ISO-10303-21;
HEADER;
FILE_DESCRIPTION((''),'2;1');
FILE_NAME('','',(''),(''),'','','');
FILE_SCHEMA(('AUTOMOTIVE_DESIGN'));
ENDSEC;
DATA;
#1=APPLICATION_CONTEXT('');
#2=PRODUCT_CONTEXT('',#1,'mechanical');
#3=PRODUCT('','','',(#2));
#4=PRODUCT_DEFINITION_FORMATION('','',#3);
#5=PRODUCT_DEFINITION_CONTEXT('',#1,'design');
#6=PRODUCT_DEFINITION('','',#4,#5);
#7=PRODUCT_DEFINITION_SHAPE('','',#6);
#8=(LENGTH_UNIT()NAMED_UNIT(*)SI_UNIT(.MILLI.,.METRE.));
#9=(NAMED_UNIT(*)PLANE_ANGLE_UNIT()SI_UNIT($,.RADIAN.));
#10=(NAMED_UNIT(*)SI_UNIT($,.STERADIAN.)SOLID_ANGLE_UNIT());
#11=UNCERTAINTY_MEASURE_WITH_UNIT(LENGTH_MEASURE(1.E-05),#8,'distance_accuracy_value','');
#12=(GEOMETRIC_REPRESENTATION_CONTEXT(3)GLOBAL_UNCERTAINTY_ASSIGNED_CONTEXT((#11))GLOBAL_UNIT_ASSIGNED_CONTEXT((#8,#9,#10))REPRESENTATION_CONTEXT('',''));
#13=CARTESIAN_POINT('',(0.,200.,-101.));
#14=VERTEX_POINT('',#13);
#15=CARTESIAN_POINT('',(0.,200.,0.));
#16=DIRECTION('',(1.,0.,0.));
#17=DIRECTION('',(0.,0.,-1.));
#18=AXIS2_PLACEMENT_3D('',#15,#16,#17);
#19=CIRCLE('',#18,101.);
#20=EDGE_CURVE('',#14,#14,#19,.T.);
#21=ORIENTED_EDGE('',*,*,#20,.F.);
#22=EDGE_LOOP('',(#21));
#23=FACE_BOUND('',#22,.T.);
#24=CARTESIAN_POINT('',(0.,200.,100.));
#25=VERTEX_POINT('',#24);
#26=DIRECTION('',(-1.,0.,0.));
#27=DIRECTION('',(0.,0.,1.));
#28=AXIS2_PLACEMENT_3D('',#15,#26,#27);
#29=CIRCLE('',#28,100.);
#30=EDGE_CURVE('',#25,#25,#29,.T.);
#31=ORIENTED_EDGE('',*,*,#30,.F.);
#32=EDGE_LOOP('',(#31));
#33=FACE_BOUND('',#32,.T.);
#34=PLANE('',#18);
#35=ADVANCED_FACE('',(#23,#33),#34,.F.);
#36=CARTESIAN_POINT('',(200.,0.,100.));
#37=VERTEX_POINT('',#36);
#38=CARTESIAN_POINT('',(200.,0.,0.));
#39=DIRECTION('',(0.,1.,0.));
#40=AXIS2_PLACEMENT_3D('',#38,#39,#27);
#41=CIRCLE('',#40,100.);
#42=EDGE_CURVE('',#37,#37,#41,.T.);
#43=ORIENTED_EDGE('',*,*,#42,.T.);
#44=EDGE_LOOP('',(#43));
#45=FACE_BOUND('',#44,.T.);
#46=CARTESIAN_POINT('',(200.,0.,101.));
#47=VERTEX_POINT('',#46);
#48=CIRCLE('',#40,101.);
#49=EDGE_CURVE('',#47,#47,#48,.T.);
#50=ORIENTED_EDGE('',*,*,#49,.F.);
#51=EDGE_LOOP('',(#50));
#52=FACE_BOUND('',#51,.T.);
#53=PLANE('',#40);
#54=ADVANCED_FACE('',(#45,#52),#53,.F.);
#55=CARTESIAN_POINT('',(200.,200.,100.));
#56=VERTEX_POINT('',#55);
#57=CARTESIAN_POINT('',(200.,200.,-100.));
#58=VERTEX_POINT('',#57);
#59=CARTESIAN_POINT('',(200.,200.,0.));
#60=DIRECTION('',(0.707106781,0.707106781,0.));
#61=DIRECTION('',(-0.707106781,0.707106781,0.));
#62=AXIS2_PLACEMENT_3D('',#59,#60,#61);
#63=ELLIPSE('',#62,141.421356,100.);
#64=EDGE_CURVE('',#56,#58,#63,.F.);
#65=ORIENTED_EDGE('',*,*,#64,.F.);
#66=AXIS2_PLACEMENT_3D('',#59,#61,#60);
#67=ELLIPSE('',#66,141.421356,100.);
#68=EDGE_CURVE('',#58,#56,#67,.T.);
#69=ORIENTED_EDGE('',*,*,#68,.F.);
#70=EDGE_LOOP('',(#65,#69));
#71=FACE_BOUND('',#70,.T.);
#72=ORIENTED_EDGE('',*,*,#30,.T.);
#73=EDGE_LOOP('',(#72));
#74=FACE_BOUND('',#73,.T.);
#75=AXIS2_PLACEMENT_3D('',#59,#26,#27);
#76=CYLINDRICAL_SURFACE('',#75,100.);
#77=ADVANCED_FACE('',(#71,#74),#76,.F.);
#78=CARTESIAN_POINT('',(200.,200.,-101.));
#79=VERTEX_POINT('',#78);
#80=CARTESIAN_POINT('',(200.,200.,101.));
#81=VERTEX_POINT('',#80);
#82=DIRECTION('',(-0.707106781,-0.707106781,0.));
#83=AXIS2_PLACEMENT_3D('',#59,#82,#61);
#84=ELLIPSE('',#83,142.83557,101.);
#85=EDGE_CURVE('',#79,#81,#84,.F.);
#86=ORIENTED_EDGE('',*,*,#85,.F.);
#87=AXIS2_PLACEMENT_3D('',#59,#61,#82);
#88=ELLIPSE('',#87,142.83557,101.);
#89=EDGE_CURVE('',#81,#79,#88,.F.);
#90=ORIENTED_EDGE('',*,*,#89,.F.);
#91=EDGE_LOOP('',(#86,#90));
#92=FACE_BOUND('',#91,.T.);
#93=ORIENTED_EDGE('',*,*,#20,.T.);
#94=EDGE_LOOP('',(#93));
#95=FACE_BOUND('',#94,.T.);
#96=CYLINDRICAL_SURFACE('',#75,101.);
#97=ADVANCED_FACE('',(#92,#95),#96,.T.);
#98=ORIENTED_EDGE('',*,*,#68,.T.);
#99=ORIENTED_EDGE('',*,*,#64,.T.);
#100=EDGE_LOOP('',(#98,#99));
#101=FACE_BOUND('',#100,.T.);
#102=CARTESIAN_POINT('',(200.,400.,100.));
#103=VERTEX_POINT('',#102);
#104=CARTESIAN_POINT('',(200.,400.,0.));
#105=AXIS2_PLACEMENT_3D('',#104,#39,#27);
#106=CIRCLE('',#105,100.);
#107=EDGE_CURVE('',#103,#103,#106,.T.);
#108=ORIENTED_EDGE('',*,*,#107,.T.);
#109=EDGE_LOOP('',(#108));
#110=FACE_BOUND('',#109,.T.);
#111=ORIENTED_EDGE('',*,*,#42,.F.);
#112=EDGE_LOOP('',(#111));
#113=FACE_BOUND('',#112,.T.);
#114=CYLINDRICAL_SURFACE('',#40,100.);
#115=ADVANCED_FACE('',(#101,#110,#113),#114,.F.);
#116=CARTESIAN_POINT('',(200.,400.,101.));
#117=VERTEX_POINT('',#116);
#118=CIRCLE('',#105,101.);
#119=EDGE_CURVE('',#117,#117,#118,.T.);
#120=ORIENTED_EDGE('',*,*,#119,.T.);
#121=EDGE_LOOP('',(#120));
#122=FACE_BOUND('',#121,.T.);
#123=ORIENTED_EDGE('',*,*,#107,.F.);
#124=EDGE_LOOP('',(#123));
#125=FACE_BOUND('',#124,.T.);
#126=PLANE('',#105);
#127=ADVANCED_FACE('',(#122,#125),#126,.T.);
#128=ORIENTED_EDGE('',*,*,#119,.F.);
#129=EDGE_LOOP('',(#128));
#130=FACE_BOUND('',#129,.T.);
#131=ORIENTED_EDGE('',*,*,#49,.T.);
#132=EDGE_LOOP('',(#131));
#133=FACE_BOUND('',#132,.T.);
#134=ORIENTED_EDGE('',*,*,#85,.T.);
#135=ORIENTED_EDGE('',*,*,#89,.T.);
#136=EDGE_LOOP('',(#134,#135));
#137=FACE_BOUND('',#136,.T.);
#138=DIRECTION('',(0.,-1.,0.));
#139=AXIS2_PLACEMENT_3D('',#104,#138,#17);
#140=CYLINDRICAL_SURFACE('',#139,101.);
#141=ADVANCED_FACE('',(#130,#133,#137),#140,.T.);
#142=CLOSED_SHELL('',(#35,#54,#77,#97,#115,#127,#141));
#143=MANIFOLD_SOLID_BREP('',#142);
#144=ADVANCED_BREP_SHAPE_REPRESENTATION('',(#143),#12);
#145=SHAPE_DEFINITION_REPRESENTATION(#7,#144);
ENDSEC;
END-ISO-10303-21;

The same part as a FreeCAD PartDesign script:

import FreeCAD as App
import Part
import Sketcher
from FreeCAD import Vector
Q = App.Units.Quantity

doc = App.newDocument("Part")
body = doc.addObject("PartDesign::Body", "Body")

sketch1 = body.newObject("Sketcher::SketchObject", "Sketch")
sketch1.AttachmentSupport = (doc.getObject("YZ_Plane"), [""])
sketch1.MapMode = "FlatFace"
sketch1.addGeometry(Part.Circle(Vector(200, 0, 0), Vector(0, 0, 1), 101), False)
sketch1.addConstraint([
    Sketcher.Constraint("PointOnObject", 0, 3, -1),
    Sketcher.Constraint("Diameter", 0, Q("202 mm")),
    Sketcher.Constraint("DistanceX", -1, 1, 0, 3, Q("200 mm")),
])
pad1 = body.newObject("PartDesign::Pad", "Pad")
pad1.Profile = sketch1
pad1.Length = 200

sketch2 = body.newObject("Sketcher::SketchObject", "Sketch001")
sketch2.AttachmentSupport = (doc.getObject("XZ_Plane"), [""])
sketch2.MapMode = "FlatFace"
sketch2.addGeometry(Part.Circle(Vector(200, 0, 0), Vector(0, 0, 1), 101), False)
sketch2.addConstraint([
    Sketcher.Constraint("PointOnObject", 0, 3, -1),
    Sketcher.Constraint("Diameter", 0, Q("202 mm")),
    Sketcher.Constraint("DistanceX", -1, 1, 0, 3, Q("200 mm")),
])
pad2 = body.newObject("PartDesign::Pad", "Pad001")
pad2.Profile = sketch2
pad2.Length = 400
pad2.Reversed = True

sketch3 = body.newObject("Sketcher::SketchObject", "Sketch002")
sketch3.AttachmentSupport = (doc.getObject("XZ_Plane"), [""])
sketch3.MapMode = "FlatFace"
sketch3.AttachmentOffset = App.Placement(Vector(0, 0, -400), App.Rotation())
sketch3.addGeometry(Part.Circle(Vector(200, 0, 0), Vector(0, 0, 1), 100), False)
sketch3.addConstraint([
    Sketcher.Constraint("PointOnObject", 0, 3, -1),
    Sketcher.Constraint("Diameter", 0, Q("200 mm")),
    Sketcher.Constraint("DistanceX", -1, 1, 0, 3, Q("200 mm")),
])
pocket1 = body.newObject("PartDesign::Pocket", "Pocket")
pocket1.Profile = sketch3
pocket1.Length = 400
pocket1.Reversed = True

sketch4 = body.newObject("Sketcher::SketchObject", "Sketch003")
sketch4.AttachmentSupport = (doc.getObject("YZ_Plane"), [""])
sketch4.MapMode = "FlatFace"
sketch4.addGeometry(Part.Circle(Vector(200, 0, 0), Vector(0, 0, 1), 100), False)
sketch4.addConstraint([
    Sketcher.Constraint("PointOnObject", 0, 3, -1),
    Sketcher.Constraint("Diameter", 0, Q("200 mm")),
    Sketcher.Constraint("DistanceX", -1, 1, 0, 3, Q("200 mm")),
])
pocket2 = body.newObject("PartDesign::Pocket", "Pocket001")
pocket2.Profile = sketch4
pocket2.Length = 200
pocket2.Reversed = True

doc.recompute()
